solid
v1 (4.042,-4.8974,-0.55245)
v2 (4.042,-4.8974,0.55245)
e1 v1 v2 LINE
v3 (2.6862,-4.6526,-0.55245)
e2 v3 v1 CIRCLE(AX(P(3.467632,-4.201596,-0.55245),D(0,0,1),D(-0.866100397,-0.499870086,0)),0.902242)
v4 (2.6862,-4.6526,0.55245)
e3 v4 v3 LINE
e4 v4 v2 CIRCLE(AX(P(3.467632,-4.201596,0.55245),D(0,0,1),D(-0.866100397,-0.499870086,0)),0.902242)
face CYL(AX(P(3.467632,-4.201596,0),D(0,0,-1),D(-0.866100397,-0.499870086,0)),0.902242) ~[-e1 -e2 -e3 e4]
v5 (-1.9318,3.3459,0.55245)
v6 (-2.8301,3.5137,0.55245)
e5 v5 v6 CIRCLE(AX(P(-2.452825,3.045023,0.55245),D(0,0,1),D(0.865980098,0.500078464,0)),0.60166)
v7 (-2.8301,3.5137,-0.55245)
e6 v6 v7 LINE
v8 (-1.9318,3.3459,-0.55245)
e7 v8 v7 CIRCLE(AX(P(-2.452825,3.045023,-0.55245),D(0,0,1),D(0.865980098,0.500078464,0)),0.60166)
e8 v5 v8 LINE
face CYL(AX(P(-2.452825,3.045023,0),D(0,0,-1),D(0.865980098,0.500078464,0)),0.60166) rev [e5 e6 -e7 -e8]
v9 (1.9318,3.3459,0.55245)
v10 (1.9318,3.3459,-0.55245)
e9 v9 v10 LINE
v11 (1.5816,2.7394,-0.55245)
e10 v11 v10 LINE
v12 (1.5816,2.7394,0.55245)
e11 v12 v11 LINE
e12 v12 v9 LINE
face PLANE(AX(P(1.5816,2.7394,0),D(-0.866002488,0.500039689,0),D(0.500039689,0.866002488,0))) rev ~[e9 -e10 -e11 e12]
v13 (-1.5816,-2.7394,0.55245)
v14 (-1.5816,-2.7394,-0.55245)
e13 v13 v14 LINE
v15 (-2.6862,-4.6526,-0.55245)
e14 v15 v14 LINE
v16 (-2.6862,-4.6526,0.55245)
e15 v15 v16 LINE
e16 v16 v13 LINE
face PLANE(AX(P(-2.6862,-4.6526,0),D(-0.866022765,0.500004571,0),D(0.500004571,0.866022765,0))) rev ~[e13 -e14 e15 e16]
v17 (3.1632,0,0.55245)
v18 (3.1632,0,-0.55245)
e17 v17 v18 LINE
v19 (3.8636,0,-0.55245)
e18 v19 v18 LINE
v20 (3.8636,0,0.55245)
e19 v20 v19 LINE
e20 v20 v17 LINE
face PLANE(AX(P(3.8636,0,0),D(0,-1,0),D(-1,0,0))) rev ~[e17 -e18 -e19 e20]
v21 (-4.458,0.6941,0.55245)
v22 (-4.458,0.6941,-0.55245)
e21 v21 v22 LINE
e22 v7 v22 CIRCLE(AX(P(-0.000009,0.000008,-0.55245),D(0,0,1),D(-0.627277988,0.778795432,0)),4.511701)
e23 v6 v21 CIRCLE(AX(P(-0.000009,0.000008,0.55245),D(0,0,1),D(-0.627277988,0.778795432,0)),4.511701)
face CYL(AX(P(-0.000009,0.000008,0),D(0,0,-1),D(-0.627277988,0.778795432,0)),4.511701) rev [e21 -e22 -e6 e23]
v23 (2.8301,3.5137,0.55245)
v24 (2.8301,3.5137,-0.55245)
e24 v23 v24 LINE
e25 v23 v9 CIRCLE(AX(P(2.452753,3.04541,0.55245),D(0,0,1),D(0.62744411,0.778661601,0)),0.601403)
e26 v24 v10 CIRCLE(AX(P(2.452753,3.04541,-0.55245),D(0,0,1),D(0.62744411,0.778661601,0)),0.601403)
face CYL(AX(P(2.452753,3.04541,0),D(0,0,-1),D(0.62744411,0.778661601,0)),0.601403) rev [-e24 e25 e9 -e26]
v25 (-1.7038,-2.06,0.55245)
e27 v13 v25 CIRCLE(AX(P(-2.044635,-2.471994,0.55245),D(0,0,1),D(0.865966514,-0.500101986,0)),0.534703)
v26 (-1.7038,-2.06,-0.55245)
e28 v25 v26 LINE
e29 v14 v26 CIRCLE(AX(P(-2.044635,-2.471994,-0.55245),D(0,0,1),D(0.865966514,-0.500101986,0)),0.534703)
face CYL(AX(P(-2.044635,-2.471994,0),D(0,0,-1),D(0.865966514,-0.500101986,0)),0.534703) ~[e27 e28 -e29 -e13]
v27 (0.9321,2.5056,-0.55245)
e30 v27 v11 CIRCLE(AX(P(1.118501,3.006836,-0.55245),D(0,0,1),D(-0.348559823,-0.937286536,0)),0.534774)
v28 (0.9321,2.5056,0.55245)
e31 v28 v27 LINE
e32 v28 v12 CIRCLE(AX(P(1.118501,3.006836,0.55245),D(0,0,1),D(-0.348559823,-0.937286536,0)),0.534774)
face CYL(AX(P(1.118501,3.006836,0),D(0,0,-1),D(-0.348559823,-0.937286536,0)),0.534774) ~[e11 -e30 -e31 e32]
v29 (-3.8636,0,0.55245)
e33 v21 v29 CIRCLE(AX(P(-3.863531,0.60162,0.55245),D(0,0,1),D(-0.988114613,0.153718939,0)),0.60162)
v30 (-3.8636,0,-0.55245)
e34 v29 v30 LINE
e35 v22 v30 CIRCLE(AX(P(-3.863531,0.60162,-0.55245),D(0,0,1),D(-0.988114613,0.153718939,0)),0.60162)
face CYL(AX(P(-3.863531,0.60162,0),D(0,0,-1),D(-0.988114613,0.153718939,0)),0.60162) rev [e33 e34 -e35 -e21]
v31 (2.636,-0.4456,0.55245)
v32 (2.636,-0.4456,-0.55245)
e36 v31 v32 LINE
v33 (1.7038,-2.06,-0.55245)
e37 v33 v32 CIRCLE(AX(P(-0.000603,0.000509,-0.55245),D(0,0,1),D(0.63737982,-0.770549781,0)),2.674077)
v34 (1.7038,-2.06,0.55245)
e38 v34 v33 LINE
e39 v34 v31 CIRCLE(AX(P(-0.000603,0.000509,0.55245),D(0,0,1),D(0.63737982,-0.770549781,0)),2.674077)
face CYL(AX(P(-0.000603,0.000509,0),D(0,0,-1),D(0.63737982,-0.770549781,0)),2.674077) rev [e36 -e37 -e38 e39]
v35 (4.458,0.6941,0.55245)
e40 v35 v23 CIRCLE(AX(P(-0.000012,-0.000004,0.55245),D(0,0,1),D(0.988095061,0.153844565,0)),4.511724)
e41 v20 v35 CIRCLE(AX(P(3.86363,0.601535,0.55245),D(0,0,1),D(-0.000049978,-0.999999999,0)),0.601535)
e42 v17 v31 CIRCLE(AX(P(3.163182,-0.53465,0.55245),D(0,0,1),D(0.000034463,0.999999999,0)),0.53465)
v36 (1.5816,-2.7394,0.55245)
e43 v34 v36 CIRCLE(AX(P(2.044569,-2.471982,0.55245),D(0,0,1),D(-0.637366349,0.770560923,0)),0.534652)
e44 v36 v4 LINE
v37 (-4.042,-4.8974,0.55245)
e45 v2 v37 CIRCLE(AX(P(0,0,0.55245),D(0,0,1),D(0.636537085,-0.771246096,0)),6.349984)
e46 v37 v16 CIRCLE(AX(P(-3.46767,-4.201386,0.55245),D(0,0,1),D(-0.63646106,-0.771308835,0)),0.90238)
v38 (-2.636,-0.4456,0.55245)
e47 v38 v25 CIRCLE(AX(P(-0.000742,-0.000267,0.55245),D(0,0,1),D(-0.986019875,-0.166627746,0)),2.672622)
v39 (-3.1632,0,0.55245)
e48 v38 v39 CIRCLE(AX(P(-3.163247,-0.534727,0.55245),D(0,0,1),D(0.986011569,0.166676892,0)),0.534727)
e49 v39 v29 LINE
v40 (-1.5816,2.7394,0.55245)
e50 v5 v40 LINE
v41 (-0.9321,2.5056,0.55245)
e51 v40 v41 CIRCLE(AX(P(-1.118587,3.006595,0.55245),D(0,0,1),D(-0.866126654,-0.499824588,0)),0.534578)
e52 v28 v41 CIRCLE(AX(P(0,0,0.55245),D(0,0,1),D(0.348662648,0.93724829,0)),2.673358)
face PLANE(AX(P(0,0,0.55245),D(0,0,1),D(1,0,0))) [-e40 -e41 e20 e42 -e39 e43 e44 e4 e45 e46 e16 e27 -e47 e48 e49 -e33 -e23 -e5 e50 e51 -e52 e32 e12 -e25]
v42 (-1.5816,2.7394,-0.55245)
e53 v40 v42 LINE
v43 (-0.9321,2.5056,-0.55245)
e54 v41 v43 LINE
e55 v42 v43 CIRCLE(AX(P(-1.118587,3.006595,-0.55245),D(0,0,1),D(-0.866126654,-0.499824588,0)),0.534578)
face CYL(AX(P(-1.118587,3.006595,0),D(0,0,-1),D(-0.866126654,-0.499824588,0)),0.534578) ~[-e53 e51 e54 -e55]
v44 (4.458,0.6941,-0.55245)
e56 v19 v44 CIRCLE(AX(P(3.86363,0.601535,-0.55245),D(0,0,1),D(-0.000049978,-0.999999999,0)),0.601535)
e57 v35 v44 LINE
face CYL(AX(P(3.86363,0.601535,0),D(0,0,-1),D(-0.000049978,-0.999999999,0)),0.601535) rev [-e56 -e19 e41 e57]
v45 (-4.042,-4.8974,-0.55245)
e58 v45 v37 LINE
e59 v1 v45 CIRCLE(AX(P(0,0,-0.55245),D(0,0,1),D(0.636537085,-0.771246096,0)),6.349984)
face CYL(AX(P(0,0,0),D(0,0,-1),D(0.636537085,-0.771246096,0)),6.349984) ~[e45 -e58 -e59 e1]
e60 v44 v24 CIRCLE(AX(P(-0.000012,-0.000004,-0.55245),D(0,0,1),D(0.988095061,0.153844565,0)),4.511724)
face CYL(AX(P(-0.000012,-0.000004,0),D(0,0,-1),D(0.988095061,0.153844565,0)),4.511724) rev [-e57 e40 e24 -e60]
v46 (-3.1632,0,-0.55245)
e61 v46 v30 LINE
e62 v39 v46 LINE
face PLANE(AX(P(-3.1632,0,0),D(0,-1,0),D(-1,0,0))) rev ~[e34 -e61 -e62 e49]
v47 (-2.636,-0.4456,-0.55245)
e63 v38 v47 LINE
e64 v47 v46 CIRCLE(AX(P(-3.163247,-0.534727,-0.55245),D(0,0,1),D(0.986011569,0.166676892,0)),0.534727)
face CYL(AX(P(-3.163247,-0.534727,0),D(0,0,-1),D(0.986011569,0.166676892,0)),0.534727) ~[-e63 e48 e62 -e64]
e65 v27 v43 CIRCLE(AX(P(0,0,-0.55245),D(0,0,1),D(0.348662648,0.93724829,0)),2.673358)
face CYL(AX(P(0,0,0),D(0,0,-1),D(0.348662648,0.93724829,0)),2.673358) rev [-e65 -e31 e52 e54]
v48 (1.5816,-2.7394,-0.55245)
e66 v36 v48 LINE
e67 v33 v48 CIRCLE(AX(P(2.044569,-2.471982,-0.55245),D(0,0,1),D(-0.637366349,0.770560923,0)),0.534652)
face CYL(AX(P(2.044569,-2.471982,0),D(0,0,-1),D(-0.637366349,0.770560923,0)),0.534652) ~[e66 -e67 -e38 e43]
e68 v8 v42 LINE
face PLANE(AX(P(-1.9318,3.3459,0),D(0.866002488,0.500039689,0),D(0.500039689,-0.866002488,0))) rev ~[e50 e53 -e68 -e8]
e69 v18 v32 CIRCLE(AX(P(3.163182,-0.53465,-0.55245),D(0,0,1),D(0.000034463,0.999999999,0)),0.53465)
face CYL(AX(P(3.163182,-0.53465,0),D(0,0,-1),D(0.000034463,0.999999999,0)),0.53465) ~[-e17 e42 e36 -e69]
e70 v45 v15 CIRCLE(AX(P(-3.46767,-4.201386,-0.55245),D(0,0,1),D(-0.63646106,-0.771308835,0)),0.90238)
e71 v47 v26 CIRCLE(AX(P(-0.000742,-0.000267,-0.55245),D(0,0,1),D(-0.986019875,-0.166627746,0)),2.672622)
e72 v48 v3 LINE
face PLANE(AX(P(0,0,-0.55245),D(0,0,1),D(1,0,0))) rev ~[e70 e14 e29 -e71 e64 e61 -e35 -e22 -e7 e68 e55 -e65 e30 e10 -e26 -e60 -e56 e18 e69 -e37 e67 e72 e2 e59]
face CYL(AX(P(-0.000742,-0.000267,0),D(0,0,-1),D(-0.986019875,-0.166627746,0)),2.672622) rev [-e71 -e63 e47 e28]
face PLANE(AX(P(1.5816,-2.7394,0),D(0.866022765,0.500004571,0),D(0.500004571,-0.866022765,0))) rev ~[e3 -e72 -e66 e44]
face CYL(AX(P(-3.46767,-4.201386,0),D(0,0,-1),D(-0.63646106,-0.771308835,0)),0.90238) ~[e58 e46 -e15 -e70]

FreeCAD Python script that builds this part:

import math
import FreeCAD as App
import Part
import Sketcher
Q = App.Units.Quantity

doc = App.newDocument("Part")
body = doc.addObject("PartDesign::Body", "Body")

# Sketch on XY plane
sketch1 = body.newObject("Sketcher::SketchObject", "Sketch")
sketch1.AttachmentSupport = (doc.getObject("XY_Plane"), [""])
sketch1.MapMode = "FlatFace"
sketch1.addGeometry(Part.ArcOfCircle(Part.Circle(App.Vector(3.5, -4.2, 0), App.Vector(0, 0, 1), 0.9), math.radians(-150), math.radians(-50)), False)
sketch1.addGeometry(Part.ArcOfCircle(Part.Circle(App.Vector(0, 0, 0), App.Vector(0, 0, 1), 6.3), math.radians(-50), math.radians(230)), False)
sketch1.addGeometry(Part.ArcOfCircle(Part.Circle(App.Vector(-3.5, -4.2, 0), App.Vector(0, 0, 1), 0.9), math.radians(-130), math.radians(-30)), False)
sketch1.addGeometry(Part.LineSegment(App.Vector(-2.7, -4.7, 0), App.Vector(-1.6, -2.7, 0)), False)
sketch1.addGeometry(Part.ArcOfCircle(Part.Circle(App.Vector(-2, -2.5, 0), App.Vector(0, 0, 1), 0.5), math.radians(-30), math.radians(50)), False)
sketch1.addGeometry(Part.ArcOfCircle(Part.Circle(App.Vector(0, 0, 0), App.Vector(0, 0, 1), 2.7), math.radians(-170), math.radians(-130)), False)
sketch1.addGeometry(Part.ArcOfCircle(Part.Circle(App.Vector(-3.2, -0.5, 0), App.Vector(0, 0, 1), 0.5), math.radians(10), math.radians(90)), False)
sketch1.addGeometry(Part.LineSegment(App.Vector(-3.2, 0, 0), App.Vector(-3.9, 0, 0)), False)
sketch1.addGeometry(Part.ArcOfCircle(Part.Circle(App.Vector(-3.9, 0.6, 0), App.Vector(0, 0, 1), 0.6), math.radians(171), math.radians(270)), False)
sketch1.addGeometry(Part.ArcOfCircle(Part.Circle(App.Vector(0, 0, 0), App.Vector(0, 0, 1), 4.5), math.radians(129), math.radians(171)), False)
sketch1.addGeometry(Part.ArcOfCircle(Part.Circle(App.Vector(-2.5, 3, 0), App.Vector(0, 0, 1), 0.6), math.radians(30), math.radians(129)), False)
sketch1.addGeometry(Part.LineSegment(App.Vector(-1.9, 3.3, 0), App.Vector(-1.6, 2.7, 0)), False)
sketch1.addGeometry(Part.ArcOfCircle(Part.Circle(App.Vector(-1.1, 3, 0), App.Vector(0, 0, 1), 0.5), math.radians(-150), math.radians(-70)), False)
sketch1.addGeometry(Part.ArcOfCircle(Part.Circle(App.Vector(0, 0, 0), App.Vector(0, 0, 1), 2.7), math.radians(70), math.radians(110)), False)
sketch1.addGeometry(Part.ArcOfCircle(Part.Circle(App.Vector(1.1, 3, 0), App.Vector(0, 0, 1), 0.5), math.radians(-110), math.radians(-30)), False)
sketch1.addGeometry(Part.LineSegment(App.Vector(1.6, 2.7, 0), App.Vector(1.9, 3.3, 0)), False)
sketch1.addGeometry(Part.ArcOfCircle(Part.Circle(App.Vector(2.5, 3, 0), App.Vector(0, 0, 1), 0.6), math.radians(51), math.radians(150)), False)
sketch1.addGeometry(Part.ArcOfCircle(Part.Circle(App.Vector(0, 0, 0), App.Vector(0, 0, 1), 4.5), math.radians(9), math.radians(51)), False)
sketch1.addGeometry(Part.ArcOfCircle(Part.Circle(App.Vector(3.9, 0.6, 0), App.Vector(0, 0, 1), 0.6), math.radians(-90), math.radians(9)), False)
sketch1.addGeometry(Part.LineSegment(App.Vector(3.9, 0, 0), App.Vector(3.2, 0, 0)), False)
sketch1.addGeometry(Part.ArcOfCircle(Part.Circle(App.Vector(3.2, -0.5, 0), App.Vector(0, 0, 1), 0.5), math.radians(90), math.radians(170)), False)
sketch1.addGeometry(Part.ArcOfCircle(Part.Circle(App.Vector(0, 0, 0), App.Vector(0, 0, 1), 2.7), math.radians(-50), math.radians(-10)), False)
sketch1.addGeometry(Part.ArcOfCircle(Part.Circle(App.Vector(2, -2.5, 0), App.Vector(0, 0, 1), 0.5), math.radians(130), math.radians(210)), False)
sketch1.addGeometry(Part.LineSegment(App.Vector(1.6, -2.7, 0), App.Vector(2.7, -4.7, 0)), False)
sketch1.addConstraint(Sketcher.Constraint("Tangent", 0, 2, 1, 1))
sketch1.addConstraint(Sketcher.Constraint("Tangent", 1, 2, 2, 1))
sketch1.addConstraint(Sketcher.Constraint("Tangent", 2, 2, 3, 1))
sketch1.addConstraint(Sketcher.Constraint("Tangent", 3, 2, 4, 1))
sketch1.addConstraint(Sketcher.Constraint("Tangent", 4, 2, 5, 2))
sketch1.addConstraint(Sketcher.Constraint("Tangent", 5, 1, 6, 1))
sketch1.addConstraint(Sketcher.Constraint("Tangent", 6, 2, 7, 1))
sketch1.addConstraint(Sketcher.Constraint("Tangent", 7, 2, 8, 2))
sketch1.addConstraint(Sketcher.Constraint("Tangent", 8, 1, 9, 2))
sketch1.addConstraint(Sketcher.Constraint("Tangent", 9, 1, 10, 2))
sketch1.addConstraint(Sketcher.Constraint("Tangent", 10, 1, 11, 1))
sketch1.addConstraint(Sketcher.Constraint("Tangent", 11, 2, 12, 1))
sketch1.addConstraint(Sketcher.Constraint("Tangent", 12, 2, 13, 2))
sketch1.addConstraint(Sketcher.Constraint("Tangent", 13, 1, 14, 1))
sketch1.addConstraint(Sketcher.Constraint("Tangent", 14, 2, 15, 1))
sketch1.addConstraint(Sketcher.Constraint("Tangent", 15, 2, 16, 2))
sketch1.addConstraint(Sketcher.Constraint("Tangent", 16, 1, 17, 2))
sketch1.addConstraint(Sketcher.Constraint("Tangent", 17, 1, 18, 2))
sketch1.addConstraint(Sketcher.Constraint("Tangent", 18, 1, 19, 1))
sketch1.addConstraint(Sketcher.Constraint("Tangent", 19, 2, 20, 1))
sketch1.addConstraint(Sketcher.Constraint("Tangent", 20, 2, 21, 2))
sketch1.addConstraint(Sketcher.Constraint("Tangent", 21, 1, 22, 1))
sketch1.addConstraint(Sketcher.Constraint("Tangent", 22, 2, 23, 1))
sketch1.addConstraint(Sketcher.Constraint("Tangent", 23, 2, 0, 1))
sketch1.addConstraint(Sketcher.Constraint("Horizontal", 7))
sketch1.addConstraint(Sketcher.Constraint("Horizontal", 19))
sketch1.addConstraint(Sketcher.Constraint("Coincident", 1, 3, -1, 1))
sketch1.addConstraint(Sketcher.Constraint("Coincident", 5, 3, -1, 1))
sketch1.addConstraint(Sketcher.Constraint("Coincident", 9, 3, -1, 1))
sketch1.addConstraint(Sketcher.Constraint("Coincident", 13, 3, -1, 1))
sketch1.addConstraint(Sketcher.Constraint("Coincident", 17, 3, -1, 1))
sketch1.addConstraint(Sketcher.Constraint("Coincident", 21, 3, -1, 1))
sketch1.addConstraint(Sketcher.Constraint("Equal", 0, 2))
sketch1.addConstraint(Sketcher.Constraint("Equal", 4, 6))
sketch1.addConstraint(Sketcher.Constraint("Equal", 8, 10))
sketch1.addConstraint(Sketcher.Constraint("Equal", 6, 12))
sketch1.addConstraint(Sketcher.Constraint("Equal", 5, 13))
sketch1.addConstraint(Sketcher.Constraint("Equal", 12, 14))
sketch1.addConstraint(Sketcher.Constraint("Equal", 10, 16))
sketch1.addConstraint(Sketcher.Constraint("Equal", 9, 17))
sketch1.addConstraint(Sketcher.Constraint("Equal", 16, 18))
sketch1.addConstraint(Sketcher.Constraint("Equal", 14, 20))
sketch1.addConstraint(Sketcher.Constraint("Equal", 13, 21))
sketch1.addConstraint(Sketcher.Constraint("Equal", 20, 22))
sketch1.addConstraint(Sketcher.Constraint("Symmetric", 3, 2, 14, 2, -1, 1))
sketch1.addConstraint(Sketcher.Constraint("Symmetric", 7, 2, 18, 1, -1, 1))
sketch1.addConstraint(Sketcher.Constraint("Symmetric", 11, 2, 22, 2, -1, 1))
sketch1.addConstraint(Sketcher.Constraint("Symmetric", 11, 2, 14, 2, -2))
sketch1.addConstraint(Sketcher.Constraint("Parallel", 3, 15))
sketch1.addConstraint(Sketcher.Constraint("Radius", 1, Q("0.25 in")))
sketch1.addConstraint(Sketcher.Constraint("Angle", 3, Q("59.9997 deg")))
sketch1.addConstraint(Sketcher.Constraint("Radius", 0, Q("0.9023 mm")))
sketch1.addConstraint(Sketcher.Constraint("Radius", 4, Q("0.5347 mm")))
sketch1.addConstraint(Sketcher.Constraint("Radius", 5, Q("2.6733 mm")))
sketch1.addConstraint(Sketcher.Constraint("Radius", 8, Q("0.6016 mm")))
sketch1.addConstraint(Sketcher.Constraint("Radius", 9, Q("4.5117 mm")))
pad1 = body.newObject("PartDesign::Pad", "Pad")
pad1.Profile = sketch1
pad1.Length = Q("0.0435 in")
pad1.Midplane = True

doc.recompute()
